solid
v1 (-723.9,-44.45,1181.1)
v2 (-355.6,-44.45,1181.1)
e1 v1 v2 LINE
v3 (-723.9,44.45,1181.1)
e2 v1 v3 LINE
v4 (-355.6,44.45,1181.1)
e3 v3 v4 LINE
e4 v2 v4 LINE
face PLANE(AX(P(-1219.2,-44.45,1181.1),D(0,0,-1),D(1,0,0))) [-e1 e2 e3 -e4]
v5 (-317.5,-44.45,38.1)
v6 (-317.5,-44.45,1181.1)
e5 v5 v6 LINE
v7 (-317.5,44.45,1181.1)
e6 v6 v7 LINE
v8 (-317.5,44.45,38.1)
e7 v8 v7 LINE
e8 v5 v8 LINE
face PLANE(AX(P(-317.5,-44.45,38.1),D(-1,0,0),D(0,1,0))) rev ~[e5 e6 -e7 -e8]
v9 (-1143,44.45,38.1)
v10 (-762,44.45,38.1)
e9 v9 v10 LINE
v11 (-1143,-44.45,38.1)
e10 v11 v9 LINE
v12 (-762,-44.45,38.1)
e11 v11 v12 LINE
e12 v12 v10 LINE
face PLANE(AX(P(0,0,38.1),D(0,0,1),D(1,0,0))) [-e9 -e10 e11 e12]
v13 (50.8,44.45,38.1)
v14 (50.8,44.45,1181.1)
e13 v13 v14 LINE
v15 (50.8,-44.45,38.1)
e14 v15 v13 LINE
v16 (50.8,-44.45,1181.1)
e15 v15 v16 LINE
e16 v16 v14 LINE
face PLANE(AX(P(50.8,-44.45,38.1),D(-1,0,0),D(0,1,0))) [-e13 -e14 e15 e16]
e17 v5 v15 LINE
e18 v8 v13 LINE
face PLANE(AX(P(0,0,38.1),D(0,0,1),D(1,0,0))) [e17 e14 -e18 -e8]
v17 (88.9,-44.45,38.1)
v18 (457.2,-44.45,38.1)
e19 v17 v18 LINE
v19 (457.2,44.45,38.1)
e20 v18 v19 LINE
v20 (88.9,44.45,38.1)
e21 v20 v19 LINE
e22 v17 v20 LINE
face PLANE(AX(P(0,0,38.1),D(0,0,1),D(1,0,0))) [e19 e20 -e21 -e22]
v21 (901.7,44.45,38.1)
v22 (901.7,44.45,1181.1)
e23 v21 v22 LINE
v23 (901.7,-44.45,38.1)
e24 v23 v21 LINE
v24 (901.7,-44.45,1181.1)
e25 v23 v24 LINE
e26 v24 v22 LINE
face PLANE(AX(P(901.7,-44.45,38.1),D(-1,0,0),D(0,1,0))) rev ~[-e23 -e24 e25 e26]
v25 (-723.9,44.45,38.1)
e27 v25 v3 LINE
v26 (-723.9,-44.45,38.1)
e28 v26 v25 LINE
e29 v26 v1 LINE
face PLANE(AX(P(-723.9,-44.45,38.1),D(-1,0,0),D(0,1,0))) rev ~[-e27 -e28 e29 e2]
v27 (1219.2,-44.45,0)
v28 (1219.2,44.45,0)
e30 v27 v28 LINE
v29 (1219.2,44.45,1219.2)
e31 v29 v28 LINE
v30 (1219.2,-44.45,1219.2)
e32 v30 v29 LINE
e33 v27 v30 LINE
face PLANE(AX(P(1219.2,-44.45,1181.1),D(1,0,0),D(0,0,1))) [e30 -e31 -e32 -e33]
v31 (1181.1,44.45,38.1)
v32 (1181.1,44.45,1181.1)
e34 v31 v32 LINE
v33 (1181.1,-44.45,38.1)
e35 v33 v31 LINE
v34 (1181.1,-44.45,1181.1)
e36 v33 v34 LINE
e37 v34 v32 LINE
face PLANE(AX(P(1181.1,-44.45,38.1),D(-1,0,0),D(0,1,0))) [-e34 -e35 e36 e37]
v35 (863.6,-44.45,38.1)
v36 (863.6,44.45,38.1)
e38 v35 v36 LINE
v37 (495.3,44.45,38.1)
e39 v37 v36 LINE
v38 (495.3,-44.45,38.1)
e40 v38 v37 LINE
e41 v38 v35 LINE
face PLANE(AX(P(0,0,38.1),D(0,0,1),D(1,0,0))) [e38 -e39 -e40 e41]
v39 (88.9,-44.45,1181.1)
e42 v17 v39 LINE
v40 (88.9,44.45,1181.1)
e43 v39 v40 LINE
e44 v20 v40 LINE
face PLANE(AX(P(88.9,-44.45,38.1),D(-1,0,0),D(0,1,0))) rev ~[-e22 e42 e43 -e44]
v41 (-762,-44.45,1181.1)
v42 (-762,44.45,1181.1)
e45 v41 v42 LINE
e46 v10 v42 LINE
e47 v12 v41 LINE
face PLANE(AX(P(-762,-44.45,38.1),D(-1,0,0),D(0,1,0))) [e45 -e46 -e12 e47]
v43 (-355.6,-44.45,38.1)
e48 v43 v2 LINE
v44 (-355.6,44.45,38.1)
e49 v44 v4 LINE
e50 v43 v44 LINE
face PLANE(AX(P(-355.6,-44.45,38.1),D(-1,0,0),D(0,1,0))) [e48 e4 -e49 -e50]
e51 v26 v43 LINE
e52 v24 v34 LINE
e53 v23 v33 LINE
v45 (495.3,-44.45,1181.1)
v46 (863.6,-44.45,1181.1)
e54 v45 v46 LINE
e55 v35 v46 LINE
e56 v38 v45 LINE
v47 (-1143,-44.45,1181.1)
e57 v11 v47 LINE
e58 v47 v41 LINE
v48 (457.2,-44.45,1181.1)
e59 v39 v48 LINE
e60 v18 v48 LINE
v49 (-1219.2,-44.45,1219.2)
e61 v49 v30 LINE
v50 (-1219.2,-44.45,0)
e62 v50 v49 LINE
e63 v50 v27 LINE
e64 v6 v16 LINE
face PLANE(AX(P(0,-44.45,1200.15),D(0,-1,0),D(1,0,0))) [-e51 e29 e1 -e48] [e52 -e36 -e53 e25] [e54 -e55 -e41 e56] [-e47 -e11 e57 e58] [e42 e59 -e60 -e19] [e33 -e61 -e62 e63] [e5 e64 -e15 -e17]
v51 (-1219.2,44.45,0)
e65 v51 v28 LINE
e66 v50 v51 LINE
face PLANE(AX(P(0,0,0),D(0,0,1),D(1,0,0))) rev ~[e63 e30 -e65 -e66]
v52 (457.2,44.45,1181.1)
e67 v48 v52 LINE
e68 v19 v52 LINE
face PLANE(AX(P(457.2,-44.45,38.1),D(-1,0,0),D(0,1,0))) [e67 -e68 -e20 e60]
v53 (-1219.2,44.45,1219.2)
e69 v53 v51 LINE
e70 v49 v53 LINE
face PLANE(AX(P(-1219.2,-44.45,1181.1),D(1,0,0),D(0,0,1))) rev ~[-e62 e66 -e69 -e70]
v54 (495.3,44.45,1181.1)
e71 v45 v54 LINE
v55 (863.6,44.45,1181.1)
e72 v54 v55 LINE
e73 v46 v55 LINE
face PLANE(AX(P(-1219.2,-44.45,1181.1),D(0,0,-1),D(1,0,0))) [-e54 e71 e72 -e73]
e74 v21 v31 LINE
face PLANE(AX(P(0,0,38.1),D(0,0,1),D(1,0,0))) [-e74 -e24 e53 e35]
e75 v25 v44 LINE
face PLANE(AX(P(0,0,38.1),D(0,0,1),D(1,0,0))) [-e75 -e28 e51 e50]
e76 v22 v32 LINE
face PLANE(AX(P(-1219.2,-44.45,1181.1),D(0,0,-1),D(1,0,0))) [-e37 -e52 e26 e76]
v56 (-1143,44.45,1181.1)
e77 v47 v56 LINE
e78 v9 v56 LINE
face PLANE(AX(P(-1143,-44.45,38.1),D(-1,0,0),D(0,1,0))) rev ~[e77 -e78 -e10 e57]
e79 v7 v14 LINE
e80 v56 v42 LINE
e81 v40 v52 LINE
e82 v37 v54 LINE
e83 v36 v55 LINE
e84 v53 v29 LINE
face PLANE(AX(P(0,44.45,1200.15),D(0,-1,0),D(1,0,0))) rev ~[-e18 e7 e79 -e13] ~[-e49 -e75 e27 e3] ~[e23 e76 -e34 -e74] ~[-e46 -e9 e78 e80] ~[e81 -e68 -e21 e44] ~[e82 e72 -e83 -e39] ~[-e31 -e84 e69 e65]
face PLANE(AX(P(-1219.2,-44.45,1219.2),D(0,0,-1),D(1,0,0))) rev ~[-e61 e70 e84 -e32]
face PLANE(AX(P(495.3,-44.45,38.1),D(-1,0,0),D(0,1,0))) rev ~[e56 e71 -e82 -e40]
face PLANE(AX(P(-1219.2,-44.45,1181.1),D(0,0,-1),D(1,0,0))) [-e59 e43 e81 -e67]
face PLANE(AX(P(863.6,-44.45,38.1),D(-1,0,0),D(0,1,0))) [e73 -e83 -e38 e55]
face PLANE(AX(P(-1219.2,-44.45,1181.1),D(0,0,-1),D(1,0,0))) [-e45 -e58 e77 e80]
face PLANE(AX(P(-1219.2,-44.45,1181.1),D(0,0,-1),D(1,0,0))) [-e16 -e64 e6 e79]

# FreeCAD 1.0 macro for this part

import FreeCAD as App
import Part
import Sketcher
from FreeCAD import Vector
Q = App.Units.Quantity


def add_polygon(sketch, points):
    """Adds a closed chain of lines whose ends are joined by coincident constraints."""
    first, n = sketch.GeometryCount, len(points)
    for a, b in zip(points, points[1:] + points[:1]):
        sketch.addGeometry(Part.LineSegment(App.Vector(*a, 0), App.Vector(*b, 0)), False)
    for i in range(n):
        sketch.addConstraint(Sketcher.Constraint("Coincident", first + i, 2, first + (i + 1) % n, 1))

doc = App.newDocument("Part")
params = doc.addObject("Spreadsheet::Sheet", "Params")
for row, (alias, value) in enumerate([
    ("sketch1_width", "96 in"),
    ("sketch1_height", "3.5 in"),
    ("pad1_length", "1.5 in"),
    ("sketch2_width", "3 in"),
    ("sketch2_width2", "1.5 in"),
    ("sketch2_height", "3.5 in"),
    ("pad2_length", "45 in"),
    ("sketch3_width", "96 in"),
    ("sketch3_height", "1.5 in"),
    ("pad3_length", "3.5 in"),
], start=1):
    params.set(f"A{row}", alias)
    params.set(f"B{row}", "=" + value)
    params.setAlias(f"B{row}", alias)

body = doc.addObject("PartDesign::Body", "Body")

sketch1 = doc.addObject("Sketcher::SketchObject", "Sketch")
body.addObject(sketch1)
sketch1.AttachmentSupport = (doc.XY_Plane, [""])
sketch1.MapMode = "FlatFace"
add_polygon(sketch1, [(-1219, 44), (-1219, -44), (1219, -44), (1219, 44)])
sketch1.addConstraint([
    Sketcher.Constraint("Vertical", 0),
    Sketcher.Constraint("Horizontal", 1),
    Sketcher.Constraint("Vertical", 2),
    Sketcher.Constraint("Horizontal", 3),
    Sketcher.Constraint("Symmetric", 0, 2, 2, 2, -1, 1),
    Sketcher.Constraint("DistanceX", 1, 1, 1, 2, Q("96 in")),
    Sketcher.Constraint("DistanceY", 0, 2, 0, 1, Q("3.5 in")),
])
sketch1.setExpression("Constraints[9]", "Params.sketch1_width")
sketch1.setExpression("Constraints[10]", "Params.sketch1_height")
pad1 = doc.addObject("PartDesign::Pad", "Pad")
body.addObject(pad1)
pad1.Profile = sketch1
pad1.setExpression("Length", "Params.pad1_length")

sketch2 = doc.addObject("Sketcher::SketchObject", "Sketch001")
body.addObject(sketch2)
sketch2.AttachmentSupport = (doc.XY_Plane, [""])
sketch2.MapMode = "FlatFace"
sketch2.AttachmentOffset = App.Placement(Vector(0, 0, 1.5 * 25.4), App.Rotation())
add_polygon(sketch2, [(1181, 44), (1181, -44), (1219, -44), (1219, 44)])
add_polygon(sketch2, [(864, 44), (864, -44), (902, -44), (902, 44)])
add_polygon(sketch2, [(457, 44), (457, -44), (495, -44), (495, 44)])
add_polygon(sketch2, [(51, 44), (51, -44), (89, -44), (89, 44)])
add_polygon(sketch2, [(-356, 44), (-356, -44), (-318, -44), (-318, 44)])
add_polygon(sketch2, [(-762, 44), (-762, -44), (-724, -44), (-724, 44)])
add_polygon(sketch2, [(-1219, 44), (-1219, -44), (-1143, -44), (-1143, 44)])
sketch2.addConstraint([
    Sketcher.Constraint("Vertical", 0),
    Sketcher.Constraint("Horizontal", 1),
    Sketcher.Constraint("Vertical", 2),
    Sketcher.Constraint("Horizontal", 3),
    Sketcher.Constraint("Vertical", 4),
    Sketcher.Constraint("Horizontal", 5),
    Sketcher.Constraint("Vertical", 6),
    Sketcher.Constraint("Horizontal", 7),
    Sketcher.Constraint("Vertical", 8),
    Sketcher.Constraint("Horizontal", 9),
    Sketcher.Constraint("Vertical", 10),
    Sketcher.Constraint("Horizontal", 11),
    Sketcher.Constraint("Vertical", 12),
    Sketcher.Constraint("Horizontal", 13),
    Sketcher.Constraint("Vertical", 14),
    Sketcher.Constraint("Horizontal", 15),
    Sketcher.Constraint("Vertical", 16),
    Sketcher.Constraint("Horizontal", 17),
    Sketcher.Constraint("Vertical", 18),
    Sketcher.Constraint("Horizontal", 19),
    Sketcher.Constraint("Vertical", 20),
    Sketcher.Constraint("Horizontal", 21),
    Sketcher.Constraint("Vertical", 22),
    Sketcher.Constraint("Horizontal", 23),
    Sketcher.Constraint("Vertical", 24),
    Sketcher.Constraint("Horizontal", 25),
    Sketcher.Constraint("Vertical", 26),
    Sketcher.Constraint("Horizontal", 27),
    Sketcher.Constraint("Symmetric", 2, 2, 24, 2, -1, 1),
    Sketcher.Constraint("Horizontal", 1, 2, 4, 2),
    Sketcher.Constraint("Horizontal", 3, 2, 6, 2),
    Sketcher.Constraint("Horizontal", 5, 2, 8, 2),
    Sketcher.Constraint("Horizontal", 7, 2, 10, 2),
    Sketcher.Constraint("Horizontal", 9, 2, 12, 2),
    Sketcher.Constraint("Horizontal", 11, 2, 14, 2),
    Sketcher.Constraint("Horizontal", 13, 2, 16, 2),
    Sketcher.Constraint("Horizontal", 15, 2, 18, 2),
    Sketcher.Constraint("Horizontal", 17, 2, 20, 2),
    Sketcher.Constraint("Horizontal", 19, 2, 22, 2),
    Sketcher.Constraint("Horizontal", 21, 2, 24, 2),
    Sketcher.Constraint("Horizontal", 23, 2, 26, 2),
    Sketcher.Constraint("Equal", 3, 5),
    Sketcher.Constraint("Equal", 7, 9),
    Sketcher.Constraint("Equal", 11, 13),
    Sketcher.Constraint("Equal", 15, 17),
    Sketcher.Constraint("Equal", 19, 21),
    Sketcher.Constraint("DistanceX", 25, 1, 25, 2, Q("3 in")),
    Sketcher.Constraint("DistanceX", 1, 1, 1, 2, Q("1.5 in")),
    Sketcher.Constraint("DistanceY", 0, 2, 0, 1, Q("3.5 in")),
    Sketcher.Constraint("DistanceX", -1, 1, 1, 2, Q("48 in")),
    Sketcher.Constraint("DistanceX", -1, 1, 4, 2, Q("34 in")),
    Sketcher.Constraint("DistanceX", -1, 1, 8, 2, Q("18 in")),
    Sketcher.Constraint("DistanceX", -1, 1, 12, 2, Q("2 in")),
    Sketcher.Constraint("DistanceX", 16, 2, -1, 1, Q("14 in")),
    Sketcher.Constraint("DistanceX", 20, 2, -1, 1, Q("30 in")),
])
sketch2.setExpression("Constraints[74]", "Params.sketch2_width")
sketch2.setExpression("Constraints[75]", "Params.sketch2_width2")
sketch2.setExpression("Constraints[76]", "Params.sketch2_height")
pad2 = doc.addObject("PartDesign::Pad", "Pad001")
body.addObject(pad2)
pad2.Profile = sketch2
pad2.setExpression("Length", "Params.pad2_length")

sketch3 = doc.addObject("Sketcher::SketchObject", "Sketch002")
body.addObject(sketch3)
sketch3.AttachmentSupport = (doc.XZ_Plane, [""])
sketch3.MapMode = "FlatFace"
sketch3.AttachmentOffset = App.Placement(Vector(0, 0, 1.75 * 25.4), App.Rotation())
add_polygon(sketch3, [(-1219, 1219), (-1219, 1181), (1219, 1181), (1219, 1219)])
sketch3.addConstraint([
    Sketcher.Constraint("Vertical", 0),
    Sketcher.Constraint("Horizontal", 1),
    Sketcher.Constraint("Vertical", 2),
    Sketcher.Constraint("Horizontal", 3),
    Sketcher.Constraint("DistanceX", 1, 1, 1, 2, Q("96 in")),
    Sketcher.Constraint("DistanceY", 0, 2, 0, 1, Q("1.5 in")),
    Sketcher.Constraint("DistanceX", 0, 2, -1, 1, Q("48 in")),
    Sketcher.Constraint("DistanceY", -1, 1, 2, 2, Q("48 in")),
])
sketch3.setExpression("Constraints[8]", "Params.sketch3_width")
sketch3.setExpression("Constraints[9]", "Params.sketch3_height")
pad3 = doc.addObject("PartDesign::Pad", "Pad002")
body.addObject(pad3)
pad3.Profile = sketch3
pad3.setExpression("Length", "Params.pad3_length")
pad3.Reversed = True

doc.recompute()
